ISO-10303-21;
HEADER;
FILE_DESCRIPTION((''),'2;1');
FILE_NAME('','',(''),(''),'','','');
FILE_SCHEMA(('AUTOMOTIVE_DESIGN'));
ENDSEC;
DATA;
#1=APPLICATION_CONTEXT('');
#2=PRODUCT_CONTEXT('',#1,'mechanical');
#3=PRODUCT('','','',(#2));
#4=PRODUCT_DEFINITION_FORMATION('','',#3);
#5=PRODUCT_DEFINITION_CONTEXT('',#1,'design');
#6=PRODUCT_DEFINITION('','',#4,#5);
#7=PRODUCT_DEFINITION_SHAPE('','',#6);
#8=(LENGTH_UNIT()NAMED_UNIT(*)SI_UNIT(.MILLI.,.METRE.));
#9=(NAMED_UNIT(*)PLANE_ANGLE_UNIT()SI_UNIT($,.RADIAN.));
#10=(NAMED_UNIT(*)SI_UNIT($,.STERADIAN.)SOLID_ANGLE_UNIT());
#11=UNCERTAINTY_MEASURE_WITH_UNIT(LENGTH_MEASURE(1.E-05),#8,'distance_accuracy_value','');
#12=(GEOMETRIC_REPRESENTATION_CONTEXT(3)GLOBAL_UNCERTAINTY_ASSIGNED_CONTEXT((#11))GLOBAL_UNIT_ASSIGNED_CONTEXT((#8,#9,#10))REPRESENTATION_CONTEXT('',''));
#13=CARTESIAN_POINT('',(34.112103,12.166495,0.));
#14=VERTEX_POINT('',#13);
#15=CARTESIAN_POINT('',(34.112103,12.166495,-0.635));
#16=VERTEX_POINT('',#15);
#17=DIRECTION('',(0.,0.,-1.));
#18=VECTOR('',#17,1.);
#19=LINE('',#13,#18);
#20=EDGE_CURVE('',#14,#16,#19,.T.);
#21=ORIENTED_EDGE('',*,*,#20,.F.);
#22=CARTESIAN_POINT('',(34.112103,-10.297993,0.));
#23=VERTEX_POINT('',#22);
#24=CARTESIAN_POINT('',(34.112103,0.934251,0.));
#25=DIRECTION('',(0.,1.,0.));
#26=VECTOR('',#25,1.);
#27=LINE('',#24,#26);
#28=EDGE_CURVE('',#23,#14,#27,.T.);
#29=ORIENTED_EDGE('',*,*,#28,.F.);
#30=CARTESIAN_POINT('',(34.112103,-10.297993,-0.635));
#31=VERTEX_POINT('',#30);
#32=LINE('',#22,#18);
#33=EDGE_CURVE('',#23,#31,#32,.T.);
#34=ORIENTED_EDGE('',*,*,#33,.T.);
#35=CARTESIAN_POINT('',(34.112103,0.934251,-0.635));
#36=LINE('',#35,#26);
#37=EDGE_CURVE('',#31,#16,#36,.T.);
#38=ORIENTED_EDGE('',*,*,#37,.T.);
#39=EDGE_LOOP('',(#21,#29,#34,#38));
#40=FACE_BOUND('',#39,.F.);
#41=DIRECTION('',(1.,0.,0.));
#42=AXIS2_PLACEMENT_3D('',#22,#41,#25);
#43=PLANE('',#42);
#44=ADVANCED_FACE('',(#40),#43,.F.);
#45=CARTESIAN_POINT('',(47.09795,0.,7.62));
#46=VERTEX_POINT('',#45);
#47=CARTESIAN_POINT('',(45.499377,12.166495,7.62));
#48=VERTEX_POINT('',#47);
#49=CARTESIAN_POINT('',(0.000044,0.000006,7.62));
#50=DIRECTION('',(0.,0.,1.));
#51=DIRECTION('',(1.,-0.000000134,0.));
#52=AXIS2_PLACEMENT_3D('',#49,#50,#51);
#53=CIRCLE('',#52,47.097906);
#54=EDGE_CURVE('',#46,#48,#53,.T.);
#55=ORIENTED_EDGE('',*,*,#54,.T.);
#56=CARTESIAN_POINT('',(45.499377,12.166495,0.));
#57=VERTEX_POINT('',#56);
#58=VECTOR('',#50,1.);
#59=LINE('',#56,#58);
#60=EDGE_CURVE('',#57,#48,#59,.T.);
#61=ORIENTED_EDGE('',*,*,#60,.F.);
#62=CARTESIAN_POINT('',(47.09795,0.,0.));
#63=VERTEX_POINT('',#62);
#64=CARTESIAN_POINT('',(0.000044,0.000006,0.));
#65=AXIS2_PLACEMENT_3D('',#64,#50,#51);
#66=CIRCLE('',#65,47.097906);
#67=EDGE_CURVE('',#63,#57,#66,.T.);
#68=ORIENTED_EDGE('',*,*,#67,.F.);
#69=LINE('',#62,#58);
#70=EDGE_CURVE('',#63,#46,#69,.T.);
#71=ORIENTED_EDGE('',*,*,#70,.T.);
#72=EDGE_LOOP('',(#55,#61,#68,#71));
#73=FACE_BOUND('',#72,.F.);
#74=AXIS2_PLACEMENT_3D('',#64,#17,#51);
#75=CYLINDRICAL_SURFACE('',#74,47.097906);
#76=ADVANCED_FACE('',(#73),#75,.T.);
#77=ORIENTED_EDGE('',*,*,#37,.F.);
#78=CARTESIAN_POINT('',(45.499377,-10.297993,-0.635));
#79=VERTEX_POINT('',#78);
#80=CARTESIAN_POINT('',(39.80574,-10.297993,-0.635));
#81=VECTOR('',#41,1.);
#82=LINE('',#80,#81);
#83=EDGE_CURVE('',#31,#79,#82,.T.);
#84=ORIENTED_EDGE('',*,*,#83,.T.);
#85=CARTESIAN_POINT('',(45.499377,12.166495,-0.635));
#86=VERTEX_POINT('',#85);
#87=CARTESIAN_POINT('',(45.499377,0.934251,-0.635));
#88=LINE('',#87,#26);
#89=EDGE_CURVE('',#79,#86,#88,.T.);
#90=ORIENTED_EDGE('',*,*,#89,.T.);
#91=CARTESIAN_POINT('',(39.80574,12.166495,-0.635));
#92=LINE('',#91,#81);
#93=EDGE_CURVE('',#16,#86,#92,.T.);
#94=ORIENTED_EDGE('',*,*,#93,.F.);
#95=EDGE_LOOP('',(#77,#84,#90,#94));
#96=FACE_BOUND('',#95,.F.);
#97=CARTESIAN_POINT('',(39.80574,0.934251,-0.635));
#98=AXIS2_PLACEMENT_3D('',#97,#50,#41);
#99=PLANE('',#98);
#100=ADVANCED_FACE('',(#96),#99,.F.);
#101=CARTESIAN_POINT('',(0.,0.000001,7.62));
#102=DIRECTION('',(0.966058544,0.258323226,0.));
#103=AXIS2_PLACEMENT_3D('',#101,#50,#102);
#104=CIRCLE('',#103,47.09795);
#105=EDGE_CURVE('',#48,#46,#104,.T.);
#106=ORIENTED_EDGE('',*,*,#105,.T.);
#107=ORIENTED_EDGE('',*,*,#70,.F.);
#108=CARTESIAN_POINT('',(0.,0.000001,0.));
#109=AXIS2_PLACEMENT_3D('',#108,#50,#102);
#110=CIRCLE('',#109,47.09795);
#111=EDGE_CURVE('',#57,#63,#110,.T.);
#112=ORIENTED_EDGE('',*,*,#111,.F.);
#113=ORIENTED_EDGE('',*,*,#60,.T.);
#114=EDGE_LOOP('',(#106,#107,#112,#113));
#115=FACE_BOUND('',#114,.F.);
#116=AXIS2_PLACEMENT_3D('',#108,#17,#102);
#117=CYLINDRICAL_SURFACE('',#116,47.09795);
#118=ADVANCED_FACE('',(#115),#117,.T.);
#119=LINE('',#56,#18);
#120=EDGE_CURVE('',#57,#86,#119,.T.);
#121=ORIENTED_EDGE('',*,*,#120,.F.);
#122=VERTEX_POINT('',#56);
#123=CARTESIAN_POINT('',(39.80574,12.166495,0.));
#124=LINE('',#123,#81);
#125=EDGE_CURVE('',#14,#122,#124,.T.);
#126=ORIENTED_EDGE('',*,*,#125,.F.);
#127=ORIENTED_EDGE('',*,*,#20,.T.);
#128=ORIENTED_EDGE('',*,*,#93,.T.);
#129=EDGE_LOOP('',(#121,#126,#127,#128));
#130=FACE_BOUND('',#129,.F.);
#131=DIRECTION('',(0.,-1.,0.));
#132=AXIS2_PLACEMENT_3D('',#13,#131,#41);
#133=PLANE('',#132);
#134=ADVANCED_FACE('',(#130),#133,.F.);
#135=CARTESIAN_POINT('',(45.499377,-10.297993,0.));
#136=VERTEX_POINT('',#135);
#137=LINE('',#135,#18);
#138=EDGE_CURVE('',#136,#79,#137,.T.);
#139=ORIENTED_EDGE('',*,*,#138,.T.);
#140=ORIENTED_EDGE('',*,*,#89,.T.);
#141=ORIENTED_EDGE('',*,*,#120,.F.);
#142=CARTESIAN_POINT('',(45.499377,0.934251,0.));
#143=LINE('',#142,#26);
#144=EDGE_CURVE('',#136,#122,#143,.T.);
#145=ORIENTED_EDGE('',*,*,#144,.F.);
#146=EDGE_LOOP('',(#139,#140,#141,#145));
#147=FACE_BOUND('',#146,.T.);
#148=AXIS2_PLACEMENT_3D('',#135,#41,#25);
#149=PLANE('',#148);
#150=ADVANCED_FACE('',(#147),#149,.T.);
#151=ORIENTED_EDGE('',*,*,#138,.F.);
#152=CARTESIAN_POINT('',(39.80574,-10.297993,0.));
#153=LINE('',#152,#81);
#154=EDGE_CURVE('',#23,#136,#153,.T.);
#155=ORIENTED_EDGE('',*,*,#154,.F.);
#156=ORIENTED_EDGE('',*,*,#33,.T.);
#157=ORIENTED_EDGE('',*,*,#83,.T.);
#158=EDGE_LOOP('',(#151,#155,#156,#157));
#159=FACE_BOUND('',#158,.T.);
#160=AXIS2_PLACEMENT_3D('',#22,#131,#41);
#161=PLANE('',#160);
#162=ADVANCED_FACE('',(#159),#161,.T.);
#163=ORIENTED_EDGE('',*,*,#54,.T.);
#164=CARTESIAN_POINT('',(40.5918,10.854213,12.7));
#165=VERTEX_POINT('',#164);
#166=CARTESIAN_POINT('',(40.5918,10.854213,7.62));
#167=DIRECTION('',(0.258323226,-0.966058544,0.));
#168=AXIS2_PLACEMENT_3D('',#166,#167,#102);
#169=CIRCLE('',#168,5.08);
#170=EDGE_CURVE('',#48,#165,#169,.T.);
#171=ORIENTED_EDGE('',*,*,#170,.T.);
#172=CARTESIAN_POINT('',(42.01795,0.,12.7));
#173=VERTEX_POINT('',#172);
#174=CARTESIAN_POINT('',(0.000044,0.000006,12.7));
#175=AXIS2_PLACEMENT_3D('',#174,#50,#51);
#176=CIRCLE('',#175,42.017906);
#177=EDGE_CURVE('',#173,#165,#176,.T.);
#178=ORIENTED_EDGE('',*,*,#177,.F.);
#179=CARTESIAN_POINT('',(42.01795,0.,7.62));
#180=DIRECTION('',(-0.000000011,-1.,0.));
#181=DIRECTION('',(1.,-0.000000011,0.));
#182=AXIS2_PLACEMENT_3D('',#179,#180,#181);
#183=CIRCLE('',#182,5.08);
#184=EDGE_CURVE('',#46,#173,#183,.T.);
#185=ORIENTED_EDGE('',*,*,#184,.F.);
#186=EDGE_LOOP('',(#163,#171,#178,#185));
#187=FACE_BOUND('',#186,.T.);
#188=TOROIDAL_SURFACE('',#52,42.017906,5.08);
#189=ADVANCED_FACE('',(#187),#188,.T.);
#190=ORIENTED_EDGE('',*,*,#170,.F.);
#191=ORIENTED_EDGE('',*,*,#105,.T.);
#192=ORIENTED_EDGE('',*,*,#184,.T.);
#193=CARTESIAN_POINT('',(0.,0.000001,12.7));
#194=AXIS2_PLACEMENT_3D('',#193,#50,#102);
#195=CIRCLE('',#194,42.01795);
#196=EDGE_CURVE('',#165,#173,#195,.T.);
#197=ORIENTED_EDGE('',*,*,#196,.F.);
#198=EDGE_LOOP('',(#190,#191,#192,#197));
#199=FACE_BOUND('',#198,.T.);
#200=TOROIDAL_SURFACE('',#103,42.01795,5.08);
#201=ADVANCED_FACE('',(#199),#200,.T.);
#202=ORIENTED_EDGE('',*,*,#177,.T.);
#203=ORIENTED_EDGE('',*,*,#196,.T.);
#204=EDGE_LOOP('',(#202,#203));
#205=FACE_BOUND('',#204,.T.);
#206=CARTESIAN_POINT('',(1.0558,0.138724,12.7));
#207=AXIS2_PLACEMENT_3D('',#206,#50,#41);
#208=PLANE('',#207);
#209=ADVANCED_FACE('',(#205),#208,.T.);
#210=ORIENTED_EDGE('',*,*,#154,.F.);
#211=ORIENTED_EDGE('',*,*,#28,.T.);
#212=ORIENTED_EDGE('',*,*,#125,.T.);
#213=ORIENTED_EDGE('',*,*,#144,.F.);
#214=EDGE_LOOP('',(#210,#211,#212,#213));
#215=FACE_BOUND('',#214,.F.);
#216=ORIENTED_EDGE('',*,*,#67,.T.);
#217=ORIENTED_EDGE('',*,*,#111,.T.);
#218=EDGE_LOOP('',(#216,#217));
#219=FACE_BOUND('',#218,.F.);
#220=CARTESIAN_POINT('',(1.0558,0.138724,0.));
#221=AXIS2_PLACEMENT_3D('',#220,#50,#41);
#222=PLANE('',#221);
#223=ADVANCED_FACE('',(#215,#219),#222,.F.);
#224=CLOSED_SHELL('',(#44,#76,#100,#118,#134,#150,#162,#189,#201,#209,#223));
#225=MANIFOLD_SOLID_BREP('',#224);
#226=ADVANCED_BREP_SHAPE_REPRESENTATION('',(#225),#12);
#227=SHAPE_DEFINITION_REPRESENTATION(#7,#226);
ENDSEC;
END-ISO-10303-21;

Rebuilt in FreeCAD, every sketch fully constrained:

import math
import FreeCAD as App
import Part
import Sketcher
from FreeCAD import Vector
Q = App.Units.Quantity


def edges_at(feature, points):
    """Names of the edges that pass closest to the given points."""
    edges = feature.Shape.Edges
    near = lambda p: min(range(len(edges)), key=lambda i: edges[i].distToShape(Part.Vertex(*p))[0])
    return sorted({f"Edge{near(p) + 1}" for p in points})

doc = App.newDocument("Part")
body = doc.addObject("PartDesign::Body", "Body")

sketch1 = body.newObject("Sketcher::SketchObject", "Sketch")
sketch1.AttachmentSupport = (doc.getObject("XY_Plane"), [""])
sketch1.MapMode = "FlatFace"
sketch1.addGeometry(Part.ArcOfCircle(Part.Circle(Vector(0, 0.000001, 0), Vector(0, 0, 1), 47.09795), math.radians(14.970592), math.radians(359.999999)), False)
sketch1.addGeometry(Part.ArcOfCircle(Part.Circle(Vector(0.000044, 0.000006, 0), Vector(0, 0, 1), 47.097906), math.radians(-0.000008), math.radians(14.970599)), False)
sketch1.addConstraint(Sketcher.Constraint("Coincident", 0, 1, 1, 2))
sketch1.addConstraint(Sketcher.Constraint("Coincident", 1, 1, 0, 2))
sketch1.addConstraint(Sketcher.Constraint("Coincident", 0, 3, -1, 1))
sketch1.addConstraint(Sketcher.Constraint("PointOnObject", 1, 1, -1))
sketch1.addConstraint(Sketcher.Constraint("Radius", 0, Q("47.09795 mm")))
sketch1.addConstraint(Sketcher.Constraint("Radius", 1, Q("47.097906 mm")))
sketch1.addConstraint(Sketcher.Constraint("DistanceY", 1, 3, 0, 1, Q("12.166489 mm")))
pad1 = body.newObject("PartDesign::Pad", "Pad")
pad1.Profile = sketch1
pad1.Length = Q("0.5 in")
doc.recompute()

fillet = body.newObject("PartDesign::Fillet", "Fillet")
fillet.Base = (pad1, edges_at(pad1, [(-46.697, -6.136, 12.7)]))
fillet.Radius = Q("0.2 in")

sketch2 = body.newObject("Sketcher::SketchObject", "Sketch001")
sketch2.AttachmentSupport = (doc.getObject("XY_Plane"), [""])
sketch2.MapMode = "FlatFace"
sketch2.addGeometry(Part.LineSegment(Vector(34.112103, 12.166495, 0), Vector(34.112103, -10.297993, 0)), False)
sketch2.addGeometry(Part.LineSegment(Vector(34.112103, -10.297993, 0), Vector(45.499377, -10.297993, 0)), False)
sketch2.addGeometry(Part.LineSegment(Vector(45.499377, -10.297993, 0), Vector(45.499377, 12.166495, 0)), False)
sketch2.addGeometry(Part.LineSegment(Vector(45.499377, 12.166495, 0), Vector(34.112103, 12.166495, 0)), False)
sketch2.addConstraint(Sketcher.Constraint("Coincident", 0, 2, 1, 1))
sketch2.addConstraint(Sketcher.Constraint("Coincident", 1, 2, 2, 1))
sketch2.addConstraint(Sketcher.Constraint("Coincident", 2, 2, 3, 1))
sketch2.addConstraint(Sketcher.Constraint("Coincident", 3, 2, 0, 1))
sketch2.addConstraint(Sketcher.Constraint("Vertical", 0))
sketch2.addConstraint(Sketcher.Constraint("Horizontal", 1))
sketch2.addConstraint(Sketcher.Constraint("Vertical", 2))
sketch2.addConstraint(Sketcher.Constraint("Horizontal", 3))
sketch2.addConstraint(Sketcher.Constraint("DistanceX", 1, 1, 1, 2, Q("11.387274 mm")))
sketch2.addConstraint(Sketcher.Constraint("DistanceY", 0, 2, 0, 1, Q("22.464488 mm")))
sketch2.addConstraint(Sketcher.Constraint("DistanceX", -1, 1, 0, 2, Q("34.112103 mm")))
sketch2.addConstraint(Sketcher.Constraint("DistanceY", 0, 2, -1, 1, Q("10.297993 mm")))
pad2 = body.newObject("PartDesign::Pad", "Pad001")
pad2.Profile = sketch2
pad2.Length = Q("0.025 in")
pad2.Reversed = True

doc.recompute()
